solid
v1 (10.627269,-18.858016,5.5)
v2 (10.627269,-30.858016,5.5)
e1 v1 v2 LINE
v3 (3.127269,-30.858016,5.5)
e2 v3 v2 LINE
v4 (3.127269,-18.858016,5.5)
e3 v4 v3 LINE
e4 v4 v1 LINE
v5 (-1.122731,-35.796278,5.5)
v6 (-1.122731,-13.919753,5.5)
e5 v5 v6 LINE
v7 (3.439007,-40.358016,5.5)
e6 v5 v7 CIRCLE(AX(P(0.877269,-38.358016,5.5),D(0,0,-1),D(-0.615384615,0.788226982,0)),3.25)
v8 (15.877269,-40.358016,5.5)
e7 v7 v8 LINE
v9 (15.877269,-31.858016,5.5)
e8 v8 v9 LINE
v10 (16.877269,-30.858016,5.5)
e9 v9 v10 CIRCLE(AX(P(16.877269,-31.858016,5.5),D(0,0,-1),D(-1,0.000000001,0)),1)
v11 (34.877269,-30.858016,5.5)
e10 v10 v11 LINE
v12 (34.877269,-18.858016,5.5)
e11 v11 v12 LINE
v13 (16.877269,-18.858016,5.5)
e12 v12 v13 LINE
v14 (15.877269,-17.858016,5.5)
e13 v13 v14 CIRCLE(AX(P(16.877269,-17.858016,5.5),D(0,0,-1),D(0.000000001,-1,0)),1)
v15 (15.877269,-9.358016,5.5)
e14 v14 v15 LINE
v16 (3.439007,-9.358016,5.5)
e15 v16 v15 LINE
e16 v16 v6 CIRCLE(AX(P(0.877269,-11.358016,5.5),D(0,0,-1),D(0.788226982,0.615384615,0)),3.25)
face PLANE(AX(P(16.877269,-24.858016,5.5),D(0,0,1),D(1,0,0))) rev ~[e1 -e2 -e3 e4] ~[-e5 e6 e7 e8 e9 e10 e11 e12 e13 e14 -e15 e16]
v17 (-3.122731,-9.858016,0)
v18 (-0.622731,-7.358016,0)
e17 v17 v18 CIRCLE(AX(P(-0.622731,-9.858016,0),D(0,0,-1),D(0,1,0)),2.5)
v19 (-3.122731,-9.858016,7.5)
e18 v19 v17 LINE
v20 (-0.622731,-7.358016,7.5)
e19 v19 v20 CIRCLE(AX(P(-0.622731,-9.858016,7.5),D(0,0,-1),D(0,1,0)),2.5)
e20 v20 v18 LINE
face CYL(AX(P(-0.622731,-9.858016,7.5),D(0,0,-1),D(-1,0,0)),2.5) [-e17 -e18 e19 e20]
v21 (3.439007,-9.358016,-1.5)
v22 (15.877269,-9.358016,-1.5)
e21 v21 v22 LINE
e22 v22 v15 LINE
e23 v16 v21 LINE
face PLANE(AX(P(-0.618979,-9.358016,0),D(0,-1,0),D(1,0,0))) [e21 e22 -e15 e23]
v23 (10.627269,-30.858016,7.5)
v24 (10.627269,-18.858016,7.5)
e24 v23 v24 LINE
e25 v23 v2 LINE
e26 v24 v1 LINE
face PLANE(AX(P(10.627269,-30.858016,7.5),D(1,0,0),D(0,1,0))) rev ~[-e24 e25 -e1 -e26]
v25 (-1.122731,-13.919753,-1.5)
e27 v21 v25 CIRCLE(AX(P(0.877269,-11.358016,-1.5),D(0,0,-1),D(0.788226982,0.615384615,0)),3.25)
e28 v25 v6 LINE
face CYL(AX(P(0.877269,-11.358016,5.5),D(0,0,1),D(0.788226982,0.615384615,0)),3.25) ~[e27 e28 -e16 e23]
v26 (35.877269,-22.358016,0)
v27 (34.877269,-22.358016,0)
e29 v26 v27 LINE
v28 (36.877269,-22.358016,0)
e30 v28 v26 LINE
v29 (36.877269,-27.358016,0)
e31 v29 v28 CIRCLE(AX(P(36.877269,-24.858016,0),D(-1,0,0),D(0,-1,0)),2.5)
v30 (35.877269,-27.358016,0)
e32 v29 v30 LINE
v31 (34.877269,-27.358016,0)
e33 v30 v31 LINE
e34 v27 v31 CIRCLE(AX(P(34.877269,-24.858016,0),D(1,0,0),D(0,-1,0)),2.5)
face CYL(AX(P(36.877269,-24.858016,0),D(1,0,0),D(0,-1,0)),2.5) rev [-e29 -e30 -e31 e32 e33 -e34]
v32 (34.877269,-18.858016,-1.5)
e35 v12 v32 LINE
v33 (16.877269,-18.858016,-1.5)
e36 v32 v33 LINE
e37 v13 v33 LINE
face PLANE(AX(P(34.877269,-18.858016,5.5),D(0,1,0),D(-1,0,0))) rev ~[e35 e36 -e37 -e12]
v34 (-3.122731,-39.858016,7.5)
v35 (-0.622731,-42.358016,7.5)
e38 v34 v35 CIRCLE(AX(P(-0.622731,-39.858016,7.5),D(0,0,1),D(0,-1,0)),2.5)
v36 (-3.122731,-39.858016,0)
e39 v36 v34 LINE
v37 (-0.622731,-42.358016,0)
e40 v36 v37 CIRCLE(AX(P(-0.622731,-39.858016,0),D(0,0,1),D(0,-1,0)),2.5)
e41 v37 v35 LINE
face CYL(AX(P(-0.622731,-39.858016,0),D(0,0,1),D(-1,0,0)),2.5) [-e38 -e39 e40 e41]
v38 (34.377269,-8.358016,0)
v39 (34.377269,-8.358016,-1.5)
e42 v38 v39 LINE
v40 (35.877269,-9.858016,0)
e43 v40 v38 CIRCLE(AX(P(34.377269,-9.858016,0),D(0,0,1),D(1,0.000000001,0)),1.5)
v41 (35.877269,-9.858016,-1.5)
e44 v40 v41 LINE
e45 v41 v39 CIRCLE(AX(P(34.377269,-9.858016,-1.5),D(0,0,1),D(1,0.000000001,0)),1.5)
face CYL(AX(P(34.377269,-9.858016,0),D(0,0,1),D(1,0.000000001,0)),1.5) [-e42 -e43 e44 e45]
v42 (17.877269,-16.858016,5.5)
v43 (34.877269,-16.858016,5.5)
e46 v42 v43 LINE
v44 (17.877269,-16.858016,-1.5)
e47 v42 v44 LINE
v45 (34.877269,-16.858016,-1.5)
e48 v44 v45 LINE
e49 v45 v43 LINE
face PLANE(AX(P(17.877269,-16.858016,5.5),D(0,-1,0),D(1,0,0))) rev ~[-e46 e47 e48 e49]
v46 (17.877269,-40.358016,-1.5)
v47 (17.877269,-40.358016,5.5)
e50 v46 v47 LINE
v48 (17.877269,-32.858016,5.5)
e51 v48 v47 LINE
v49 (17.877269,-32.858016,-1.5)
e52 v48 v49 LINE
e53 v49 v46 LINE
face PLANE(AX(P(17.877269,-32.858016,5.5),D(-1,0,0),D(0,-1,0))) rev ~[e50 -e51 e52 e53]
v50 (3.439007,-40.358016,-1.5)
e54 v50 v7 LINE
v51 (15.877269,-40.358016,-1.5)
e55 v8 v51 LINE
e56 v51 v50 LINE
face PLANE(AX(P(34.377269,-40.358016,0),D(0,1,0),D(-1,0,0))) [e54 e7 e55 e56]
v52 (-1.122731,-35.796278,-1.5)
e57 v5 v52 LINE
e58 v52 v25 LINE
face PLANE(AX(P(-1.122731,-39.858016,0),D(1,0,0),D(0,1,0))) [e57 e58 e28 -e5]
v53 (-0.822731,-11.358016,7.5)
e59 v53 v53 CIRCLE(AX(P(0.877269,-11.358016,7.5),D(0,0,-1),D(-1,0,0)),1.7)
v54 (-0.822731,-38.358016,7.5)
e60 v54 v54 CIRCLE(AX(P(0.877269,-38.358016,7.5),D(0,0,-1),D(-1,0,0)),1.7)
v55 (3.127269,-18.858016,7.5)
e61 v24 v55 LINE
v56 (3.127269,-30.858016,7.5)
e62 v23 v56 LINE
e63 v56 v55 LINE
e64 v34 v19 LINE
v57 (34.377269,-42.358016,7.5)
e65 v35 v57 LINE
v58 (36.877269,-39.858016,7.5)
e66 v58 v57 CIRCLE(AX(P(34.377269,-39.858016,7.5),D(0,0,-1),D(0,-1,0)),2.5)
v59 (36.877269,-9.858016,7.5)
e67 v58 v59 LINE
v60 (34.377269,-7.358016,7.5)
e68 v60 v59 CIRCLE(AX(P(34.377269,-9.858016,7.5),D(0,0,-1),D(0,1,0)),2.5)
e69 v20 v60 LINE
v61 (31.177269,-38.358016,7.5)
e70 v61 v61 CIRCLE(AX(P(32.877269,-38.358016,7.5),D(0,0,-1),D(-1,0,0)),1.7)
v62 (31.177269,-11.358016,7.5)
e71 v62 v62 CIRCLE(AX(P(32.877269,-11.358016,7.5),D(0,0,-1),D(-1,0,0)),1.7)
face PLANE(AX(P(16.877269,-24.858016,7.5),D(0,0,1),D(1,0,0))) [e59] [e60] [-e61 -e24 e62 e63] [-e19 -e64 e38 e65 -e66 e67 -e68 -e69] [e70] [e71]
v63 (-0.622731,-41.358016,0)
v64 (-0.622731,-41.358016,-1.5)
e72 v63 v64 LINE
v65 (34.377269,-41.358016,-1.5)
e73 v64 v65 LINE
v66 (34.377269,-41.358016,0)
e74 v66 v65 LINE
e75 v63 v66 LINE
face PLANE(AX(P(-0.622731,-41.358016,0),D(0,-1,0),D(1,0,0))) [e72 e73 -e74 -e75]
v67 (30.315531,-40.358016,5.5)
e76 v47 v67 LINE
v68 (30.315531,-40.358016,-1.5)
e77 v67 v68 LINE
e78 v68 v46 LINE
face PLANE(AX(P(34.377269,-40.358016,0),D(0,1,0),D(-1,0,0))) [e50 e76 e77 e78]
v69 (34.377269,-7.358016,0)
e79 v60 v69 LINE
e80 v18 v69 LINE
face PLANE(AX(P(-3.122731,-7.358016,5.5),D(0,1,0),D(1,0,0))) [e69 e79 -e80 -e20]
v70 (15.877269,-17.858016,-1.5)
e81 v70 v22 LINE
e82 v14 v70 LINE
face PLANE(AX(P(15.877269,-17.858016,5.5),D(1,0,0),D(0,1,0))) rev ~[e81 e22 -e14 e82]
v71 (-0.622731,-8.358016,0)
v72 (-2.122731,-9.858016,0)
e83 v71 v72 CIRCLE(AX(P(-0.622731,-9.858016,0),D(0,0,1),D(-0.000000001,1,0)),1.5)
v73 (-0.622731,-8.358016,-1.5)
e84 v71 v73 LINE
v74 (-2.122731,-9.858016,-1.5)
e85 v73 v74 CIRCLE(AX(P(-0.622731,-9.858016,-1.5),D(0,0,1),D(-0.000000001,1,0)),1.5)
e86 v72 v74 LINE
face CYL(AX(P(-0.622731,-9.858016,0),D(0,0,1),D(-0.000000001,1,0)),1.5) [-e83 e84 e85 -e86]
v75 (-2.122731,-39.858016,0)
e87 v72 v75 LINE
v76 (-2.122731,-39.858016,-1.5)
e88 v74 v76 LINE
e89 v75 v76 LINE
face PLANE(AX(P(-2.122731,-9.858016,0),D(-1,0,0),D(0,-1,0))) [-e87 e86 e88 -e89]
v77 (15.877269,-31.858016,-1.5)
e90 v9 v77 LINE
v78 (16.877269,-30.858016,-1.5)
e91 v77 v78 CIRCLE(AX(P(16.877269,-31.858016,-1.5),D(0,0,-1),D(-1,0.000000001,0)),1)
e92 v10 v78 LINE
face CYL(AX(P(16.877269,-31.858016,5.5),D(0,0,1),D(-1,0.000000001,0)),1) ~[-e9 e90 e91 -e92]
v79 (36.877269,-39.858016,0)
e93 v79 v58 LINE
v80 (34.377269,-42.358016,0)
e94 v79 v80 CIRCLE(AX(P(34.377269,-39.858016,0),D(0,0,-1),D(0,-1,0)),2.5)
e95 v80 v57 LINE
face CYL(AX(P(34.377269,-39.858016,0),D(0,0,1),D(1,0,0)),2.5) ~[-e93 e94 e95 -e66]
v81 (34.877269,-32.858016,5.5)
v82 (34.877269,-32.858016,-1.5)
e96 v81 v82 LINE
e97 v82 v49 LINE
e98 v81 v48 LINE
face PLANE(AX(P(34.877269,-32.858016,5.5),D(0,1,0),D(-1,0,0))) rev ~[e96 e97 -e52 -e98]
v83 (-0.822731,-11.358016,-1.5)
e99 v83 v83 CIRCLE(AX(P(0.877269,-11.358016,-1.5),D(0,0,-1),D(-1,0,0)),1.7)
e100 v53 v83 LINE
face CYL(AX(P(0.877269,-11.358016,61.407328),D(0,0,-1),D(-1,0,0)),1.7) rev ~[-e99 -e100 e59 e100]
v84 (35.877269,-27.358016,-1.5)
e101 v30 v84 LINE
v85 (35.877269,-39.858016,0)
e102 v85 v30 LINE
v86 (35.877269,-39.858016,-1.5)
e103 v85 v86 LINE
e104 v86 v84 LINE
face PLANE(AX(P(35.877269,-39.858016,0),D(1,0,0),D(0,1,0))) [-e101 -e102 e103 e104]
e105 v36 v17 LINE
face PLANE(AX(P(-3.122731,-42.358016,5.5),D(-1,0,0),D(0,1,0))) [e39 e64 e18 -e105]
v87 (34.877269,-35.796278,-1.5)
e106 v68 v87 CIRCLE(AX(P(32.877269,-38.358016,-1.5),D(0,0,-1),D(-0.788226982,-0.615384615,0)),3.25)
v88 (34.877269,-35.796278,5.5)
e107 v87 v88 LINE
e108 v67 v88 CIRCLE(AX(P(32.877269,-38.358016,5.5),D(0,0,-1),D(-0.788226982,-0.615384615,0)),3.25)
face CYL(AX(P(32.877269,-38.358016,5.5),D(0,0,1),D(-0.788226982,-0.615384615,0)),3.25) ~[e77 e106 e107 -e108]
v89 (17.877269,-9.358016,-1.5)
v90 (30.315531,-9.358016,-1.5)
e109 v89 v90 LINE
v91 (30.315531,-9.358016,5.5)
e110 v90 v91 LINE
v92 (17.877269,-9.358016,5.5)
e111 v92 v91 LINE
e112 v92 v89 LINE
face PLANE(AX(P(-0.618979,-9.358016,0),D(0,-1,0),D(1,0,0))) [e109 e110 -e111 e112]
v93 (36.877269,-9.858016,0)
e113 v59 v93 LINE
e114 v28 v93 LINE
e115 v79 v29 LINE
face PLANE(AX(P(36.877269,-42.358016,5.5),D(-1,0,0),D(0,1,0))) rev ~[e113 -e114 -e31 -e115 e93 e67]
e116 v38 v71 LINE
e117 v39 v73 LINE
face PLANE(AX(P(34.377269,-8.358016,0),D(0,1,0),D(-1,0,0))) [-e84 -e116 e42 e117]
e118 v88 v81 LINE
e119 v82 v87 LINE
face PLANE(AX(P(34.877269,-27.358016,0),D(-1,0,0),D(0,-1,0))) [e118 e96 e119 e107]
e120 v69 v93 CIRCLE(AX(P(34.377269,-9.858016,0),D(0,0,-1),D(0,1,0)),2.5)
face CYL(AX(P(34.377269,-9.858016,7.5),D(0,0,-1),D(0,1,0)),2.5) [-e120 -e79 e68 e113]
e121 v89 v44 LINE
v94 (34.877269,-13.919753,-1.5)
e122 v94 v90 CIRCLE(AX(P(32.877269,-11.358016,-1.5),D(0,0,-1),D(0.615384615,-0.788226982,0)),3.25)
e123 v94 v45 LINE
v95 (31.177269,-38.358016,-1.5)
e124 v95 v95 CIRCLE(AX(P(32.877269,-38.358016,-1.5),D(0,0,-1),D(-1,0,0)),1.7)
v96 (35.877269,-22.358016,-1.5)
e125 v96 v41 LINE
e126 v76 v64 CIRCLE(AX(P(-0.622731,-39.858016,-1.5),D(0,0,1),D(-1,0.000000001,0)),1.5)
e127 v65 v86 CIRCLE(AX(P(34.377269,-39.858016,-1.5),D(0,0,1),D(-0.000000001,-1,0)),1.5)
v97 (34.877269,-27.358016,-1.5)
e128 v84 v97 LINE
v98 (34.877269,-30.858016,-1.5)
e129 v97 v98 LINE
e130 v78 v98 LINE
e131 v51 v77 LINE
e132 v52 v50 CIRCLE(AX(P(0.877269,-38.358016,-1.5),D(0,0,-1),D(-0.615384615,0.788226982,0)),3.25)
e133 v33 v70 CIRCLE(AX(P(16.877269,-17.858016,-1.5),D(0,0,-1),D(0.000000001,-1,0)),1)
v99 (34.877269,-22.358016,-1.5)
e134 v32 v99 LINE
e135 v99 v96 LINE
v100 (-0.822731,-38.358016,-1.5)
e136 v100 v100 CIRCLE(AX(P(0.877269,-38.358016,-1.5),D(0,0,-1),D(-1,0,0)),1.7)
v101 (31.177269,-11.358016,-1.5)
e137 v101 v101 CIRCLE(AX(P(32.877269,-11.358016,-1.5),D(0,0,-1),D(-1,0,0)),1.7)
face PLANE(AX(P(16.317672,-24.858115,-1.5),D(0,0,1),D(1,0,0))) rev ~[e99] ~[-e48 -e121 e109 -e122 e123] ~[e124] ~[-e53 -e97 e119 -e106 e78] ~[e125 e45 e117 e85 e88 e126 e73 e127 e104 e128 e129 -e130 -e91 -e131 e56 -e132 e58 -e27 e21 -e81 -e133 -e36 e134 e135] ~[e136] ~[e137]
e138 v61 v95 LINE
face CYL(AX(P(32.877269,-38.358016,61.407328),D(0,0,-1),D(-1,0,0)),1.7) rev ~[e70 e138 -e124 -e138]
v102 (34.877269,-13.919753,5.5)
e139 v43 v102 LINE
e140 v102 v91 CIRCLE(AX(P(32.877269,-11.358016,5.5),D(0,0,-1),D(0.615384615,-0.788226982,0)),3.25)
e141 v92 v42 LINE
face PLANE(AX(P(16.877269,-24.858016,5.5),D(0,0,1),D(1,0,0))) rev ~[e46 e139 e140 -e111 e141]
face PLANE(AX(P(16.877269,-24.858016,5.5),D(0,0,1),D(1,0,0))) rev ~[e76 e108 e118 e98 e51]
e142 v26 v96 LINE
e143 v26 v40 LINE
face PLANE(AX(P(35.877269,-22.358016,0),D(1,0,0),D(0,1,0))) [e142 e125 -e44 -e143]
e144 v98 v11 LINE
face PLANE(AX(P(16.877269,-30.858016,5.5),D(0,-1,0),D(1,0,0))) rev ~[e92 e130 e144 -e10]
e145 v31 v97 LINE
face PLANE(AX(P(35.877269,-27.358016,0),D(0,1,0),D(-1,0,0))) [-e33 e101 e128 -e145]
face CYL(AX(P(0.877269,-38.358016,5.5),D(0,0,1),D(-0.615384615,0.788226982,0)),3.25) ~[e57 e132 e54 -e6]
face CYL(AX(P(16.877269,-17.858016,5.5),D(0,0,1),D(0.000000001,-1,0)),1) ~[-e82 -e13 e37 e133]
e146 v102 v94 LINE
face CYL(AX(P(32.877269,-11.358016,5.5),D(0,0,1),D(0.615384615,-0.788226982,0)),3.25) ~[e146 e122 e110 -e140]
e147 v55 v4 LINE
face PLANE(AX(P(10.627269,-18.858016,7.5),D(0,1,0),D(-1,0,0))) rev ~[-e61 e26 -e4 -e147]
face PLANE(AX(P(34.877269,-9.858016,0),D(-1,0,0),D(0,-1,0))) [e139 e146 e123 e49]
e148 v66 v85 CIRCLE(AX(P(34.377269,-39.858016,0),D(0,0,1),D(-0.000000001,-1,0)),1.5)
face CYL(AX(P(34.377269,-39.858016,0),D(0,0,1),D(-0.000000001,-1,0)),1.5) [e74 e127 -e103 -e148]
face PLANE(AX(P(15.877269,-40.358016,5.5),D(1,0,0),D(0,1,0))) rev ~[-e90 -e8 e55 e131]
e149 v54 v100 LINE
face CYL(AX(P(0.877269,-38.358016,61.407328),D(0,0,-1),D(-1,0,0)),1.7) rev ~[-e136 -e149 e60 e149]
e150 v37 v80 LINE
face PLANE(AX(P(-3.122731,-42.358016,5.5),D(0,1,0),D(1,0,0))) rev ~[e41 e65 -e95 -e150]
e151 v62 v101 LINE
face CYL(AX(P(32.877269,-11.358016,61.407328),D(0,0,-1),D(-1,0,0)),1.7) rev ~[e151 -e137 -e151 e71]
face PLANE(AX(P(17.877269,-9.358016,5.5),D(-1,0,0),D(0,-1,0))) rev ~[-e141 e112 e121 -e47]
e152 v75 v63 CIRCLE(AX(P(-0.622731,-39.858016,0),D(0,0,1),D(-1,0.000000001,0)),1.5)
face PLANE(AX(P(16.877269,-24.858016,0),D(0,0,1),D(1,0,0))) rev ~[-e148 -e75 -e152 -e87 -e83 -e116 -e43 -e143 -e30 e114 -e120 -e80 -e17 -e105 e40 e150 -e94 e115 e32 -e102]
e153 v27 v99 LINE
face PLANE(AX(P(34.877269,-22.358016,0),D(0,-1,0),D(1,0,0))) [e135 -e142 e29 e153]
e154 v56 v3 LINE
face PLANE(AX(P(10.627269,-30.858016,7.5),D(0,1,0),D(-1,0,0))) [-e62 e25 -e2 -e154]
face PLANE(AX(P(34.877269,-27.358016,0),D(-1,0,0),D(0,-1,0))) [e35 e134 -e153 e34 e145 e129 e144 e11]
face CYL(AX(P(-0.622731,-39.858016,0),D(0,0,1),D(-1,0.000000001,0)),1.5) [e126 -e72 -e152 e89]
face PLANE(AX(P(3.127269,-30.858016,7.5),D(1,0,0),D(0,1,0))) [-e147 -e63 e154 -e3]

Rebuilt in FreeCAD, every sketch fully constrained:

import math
import FreeCAD as App
import Part
import Sketcher
Q = App.Units.Quantity


def edges_at(feature, points):
    """Names of the edges that pass closest to the given points."""
    edges = feature.Shape.Edges
    near = lambda p: min(range(len(edges)), key=lambda i: edges[i].distToShape(Part.Vertex(*p))[0])
    return sorted({f"Edge{near(p) + 1}" for p in points})


def add_polygon(sketch, points):
    """Adds a closed chain of lines whose ends are joined by coincident constraints."""
    first, n = sketch.GeometryCount, len(points)
    for a, b in zip(points, points[1:] + points[:1]):
        sketch.addGeometry(Part.LineSegment(App.Vector(*a, 0), App.Vector(*b, 0)), False)
    for i in range(n):
        sketch.addConstraint(Sketcher.Constraint("Coincident", first + i, 2, first + (i + 1) % n, 1))

doc = App.newDocument("Part")
params = doc.addObject("Spreadsheet::Sheet", "Params")
for row, (alias, value) in enumerate([
    ("sketch1_width", "40 mm"),
    ("sketch1_width2", "36 mm"),
    ("sketch1_height", "35 mm"),
    ("sketch1_height2", "31 mm"),
    ("pad1_length", "5.5 mm"),
    ("sketch2_width", "40 mm"),
    ("sketch2_height", "35 mm"),
    ("pad2_length", "2 mm"),
    ("sketch3_radius", "2.5 mm"),
    ("sketch4_radius", "1 mm"),
    ("sketch4_width", "17 mm"),
    ("sketch4_width2", "2 mm"),
    ("sketch4_radius2", "3.25 mm"),
    ("sketch4_height", "7.5 mm"),
    ("pad3_length", "7 mm"),
    ("sketch5_height", "12 mm"),
    ("sketch5_width", "7.5 mm"),
    ("sketch6_diameter", "3.4 mm"),
    ("hole_diameter", "3.4 mm"),
    ("fillet_radius", "2.5 mm"),
    ("sketch7_radius", "1.5 mm"),
    ("sketch7_radius2", "0.5 mm"),
    ("sketch7_width", "35 mm"),
    ("sketch7_height", "30 mm"),
    ("sketch7_height2", "12.5 mm"),
    ("pad4_length", "1.5 mm"),
], start=1):
    params.set(f"A{row}", alias)
    params.set(f"B{row}", "=" + value)
    params.setAlias(f"B{row}", alias)

body = doc.addObject("PartDesign::Body", "Body")

sketch1 = body.newObject("Sketcher::SketchObject", "Sketch")
sketch1.AttachmentSupport = (doc.getObject("XY_Plane"), [""])
sketch1.MapMode = "FlatFace"
add_polygon(sketch1, [(-3, -7), (-3, -42), (37, -42), (37, -7)])
add_polygon(sketch1, [(35, -40), (-1, -40), (-1, -9), (35, -9)])
sketch1.addConstraint([
    Sketcher.Constraint("Vertical", 0),
    Sketcher.Constraint("Horizontal", 1),
    Sketcher.Constraint("Vertical", 2),
    Sketcher.Constraint("Horizontal", 3),
    Sketcher.Constraint("Horizontal", 4),
    Sketcher.Constraint("Vertical", 5),
    Sketcher.Constraint("Horizontal", 6),
    Sketcher.Constraint("Vertical", 7),
    Sketcher.Constraint("DistanceX", 1, 1, 1, 2, Q("40 mm")),
    Sketcher.Constraint("DistanceX", 4, 2, 4, 1, Q("36 mm")),
    Sketcher.Constraint("DistanceY", 0, 2, 0, 1, Q("35 mm")),
    Sketcher.Constraint("DistanceY", 5, 1, 5, 2, Q("31 mm")),
    Sketcher.Constraint("DistanceX", 0, 2, 4, 2, Q("2 mm")),
    Sketcher.Constraint("DistanceY", 0, 2, 4, 2, Q("2 mm")),
    Sketcher.Constraint("DistanceX", 0, 2, -1, 1, Q("3.122731 mm")),
    Sketcher.Constraint("DistanceY", 0, 2, -1, 1, Q("42.358016 mm")),
])
sketch1.setExpression("Constraints[16]", "Params.sketch1_width")
sketch1.setExpression("Constraints[17]", "Params.sketch1_width2")
sketch1.setExpression("Constraints[18]", "Params.sketch1_height")
sketch1.setExpression("Constraints[19]", "Params.sketch1_height2")
pad1 = body.newObject("PartDesign::Pad", "Pad")
pad1.Profile = sketch1
pad1.setExpression("Length", "Params.pad1_length")

sketch2 = body.newObject("Sketcher::SketchObject", "Sketch001")
sketch2.AttachmentSupport = (doc.getObject("XY_Plane"), [""])
sketch2.MapMode = "FlatFace"
sketch2.AttachmentOffset = App.Placement(App.Vector(0, 0, 5.5), App.Rotation())
add_polygon(sketch2, [(-3, -7), (-3, -42), (37, -42), (37, -7)])
sketch2.addConstraint([
    Sketcher.Constraint("Vertical", 0),
    Sketcher.Constraint("Horizontal", 1),
    Sketcher.Constraint("Vertical", 2),
    Sketcher.Constraint("Horizontal", 3),
    Sketcher.Constraint("DistanceX", 1, 1, 1, 2, Q("40 mm")),
    Sketcher.Constraint("DistanceY", 0, 2, 0, 1, Q("35 mm")),
    Sketcher.Constraint("DistanceX", 0, 2, -1, 1, Q("3.122731 mm")),
    Sketcher.Constraint("DistanceY", 0, 2, -1, 1, Q("42.358016 mm")),
])
sketch2.setExpression("Constraints[8]", "Params.sketch2_width")
sketch2.setExpression("Constraints[9]", "Params.sketch2_height")
pad2 = body.newObject("PartDesign::Pad", "Pad001")
pad2.Profile = sketch2
pad2.setExpression("Length", "Params.pad2_length")

sketch3 = body.newObject("Sketcher::SketchObject", "Sketch002")
sketch3.AttachmentSupport = (doc.getObject("YZ_Plane"), [""])
sketch3.MapMode = "FlatFace"
sketch3.AttachmentOffset = App.Placement(App.Vector(0, 0, 36.877269), App.Rotation())
sketch3.addGeometry([
    Part.LineSegment(App.Vector(-27.4, 0, 0), App.Vector(-22.4, 0, 0)),
    Part.ArcOfCircle(Part.Circle(App.Vector(-24.9, 0, 0), App.Vector(0, 0, 1), 2.5), math.radians(0), math.radians(180)),
], False)
sketch3.addConstraint([
    Sketcher.Constraint("Coincident", 0, 1, 1, 2),
    Sketcher.Constraint("Coincident", 1, 1, 0, 2),
    Sketcher.Constraint("Horizontal", 0),
    Sketcher.Constraint("PointOnObject", 1, 3, -1),
    Sketcher.Constraint("PointOnObject", 0, 1, -1),
    Sketcher.Constraint("Radius", 1, Q("2.5 mm")),
    Sketcher.Constraint("DistanceX", 1, 3, -1, 1, Q("24.858016 mm")),
])
sketch3.setExpression("Constraints[5]", "Params.sketch3_radius")
pocket1 = body.newObject("PartDesign::Pocket", "Pocket")
pocket1.Profile = sketch3
pocket1.Type = "UpToFirst"

sketch4 = body.newObject("Sketcher::SketchObject", "Sketch003")
sketch4.AttachmentSupport = (doc.getObject("XY_Plane"), [""])
sketch4.MapMode = "FlatFace"
sketch4.AttachmentOffset = App.Placement(App.Vector(0, 0, 5.5), App.Rotation())
sketch4.addGeometry([
    Part.ArcOfCircle(Part.Circle(App.Vector(32.9, -11.4, 0), App.Vector(0, 0, 1), 3.2), math.radians(142), math.radians(308)),
    Part.LineSegment(App.Vector(30.3, -9.4, 0), App.Vector(34.9, -9.4, 0)),
    Part.LineSegment(App.Vector(34.9, -9.4, 0), App.Vector(34.9, -13.9, 0)),
    Part.LineSegment(App.Vector(34.9, -32.9, 0), App.Vector(17.9, -32.9, 0)),
    Part.LineSegment(App.Vector(17.9, -32.9, 0), App.Vector(17.9, -40.4, 0)),
    Part.LineSegment(App.Vector(17.9, -40.4, 0), App.Vector(15.9, -40.4, 0)),
    Part.LineSegment(App.Vector(15.9, -40.4, 0), App.Vector(15.9, -31.9, 0)),
    Part.ArcOfCircle(Part.Circle(App.Vector(16.9, -31.9, 0), App.Vector(0, 0, 1), 1), math.radians(90), math.radians(180)),
    Part.LineSegment(App.Vector(16.9, -30.9, 0), App.Vector(34.9, -30.9, 0)),
    Part.LineSegment(App.Vector(34.9, -30.9, 0), App.Vector(34.9, -32.9, 0)),
    Part.LineSegment(App.Vector(34.9, -35.8, 0), App.Vector(34.9, -40.4, 0)),
    Part.LineSegment(App.Vector(34.9, -40.4, 0), App.Vector(30.3, -40.4, 0)),
    Part.ArcOfCircle(Part.Circle(App.Vector(32.9, -38.4, 0), App.Vector(0, 0, 1), 3.2), math.radians(52), math.radians(218)),
    Part.LineSegment(App.Vector(17.9, -16.9, 0), App.Vector(34.9, -16.9, 0)),
    Part.LineSegment(App.Vector(34.9, -16.9, 0), App.Vector(34.9, -18.9, 0)),
    Part.LineSegment(App.Vector(34.9, -18.9, 0), App.Vector(16.9, -18.9, 0)),
    Part.ArcOfCircle(Part.Circle(App.Vector(16.9, -17.9, 0), App.Vector(0, 0, 1), 1), math.radians(180), math.radians(270)),
    Part.LineSegment(App.Vector(15.9, -17.9, 0), App.Vector(15.9, -9.4, 0)),
    Part.LineSegment(App.Vector(15.9, -9.4, 0), App.Vector(17.9, -9.4, 0)),
    Part.LineSegment(App.Vector(17.9, -9.4, 0), App.Vector(17.9, -16.9, 0)),
    Part.LineSegment(App.Vector(3.4, -40.4, 0), App.Vector(-1.1, -40.4, 0)),
    Part.LineSegment(App.Vector(-1.1, -40.4, 0), App.Vector(-1.1, -35.8, 0)),
    Part.ArcOfCircle(Part.Circle(App.Vector(0.9, -38.4, 0), App.Vector(0, 0, 1), 3.2), math.radians(-38), math.radians(128)),
    Part.LineSegment(App.Vector(-1.1, -13.9, 0), App.Vector(-1.1, -9.4, 0)),
    Part.LineSegment(App.Vector(-1.1, -9.4, 0), App.Vector(3.4, -9.4, 0)),
    Part.ArcOfCircle(Part.Circle(App.Vector(0.9, -11.4, 0), App.Vector(0, 0, 1), 3.2), math.radians(-128), math.radians(38)),
], False)
sketch4.addConstraint([
    Sketcher.Constraint("Coincident", 0, 1, 1, 1),
    Sketcher.Constraint("Coincident", 1, 2, 2, 1),
    Sketcher.Constraint("Coincident", 2, 2, 0, 2),
    Sketcher.Constraint("Coincident", 3, 2, 4, 1),
    Sketcher.Constraint("Coincident", 4, 2, 5, 1),
    Sketcher.Constraint("Coincident", 5, 2, 6, 1),
    Sketcher.Constraint("Tangent", 6, 2, 7, 2),
    Sketcher.Constraint("Tangent", 7, 1, 8, 1),
    Sketcher.Constraint("Coincident", 8, 2, 9, 1),
    Sketcher.Constraint("Coincident", 9, 2, 3, 1),
    Sketcher.Constraint("Coincident", 10, 2, 11, 1),
    Sketcher.Constraint("Coincident", 11, 2, 12, 2),
    Sketcher.Constraint("Coincident", 12, 1, 10, 1),
    Sketcher.Constraint("Coincident", 13, 2, 14, 1),
    Sketcher.Constraint("Coincident", 14, 2, 15, 1),
    Sketcher.Constraint("Tangent", 15, 2, 16, 2),
    Sketcher.Constraint("Tangent", 16, 1, 17, 1),
    Sketcher.Constraint("Coincident", 17, 2, 18, 1),
    Sketcher.Constraint("Coincident", 18, 2, 19, 1),
    Sketcher.Constraint("Coincident", 19, 2, 13, 1),
    Sketcher.Constraint("Coincident", 20, 2, 21, 1),
    Sketcher.Constraint("Coincident", 21, 2, 22, 2),
    Sketcher.Constraint("Coincident", 22, 1, 20, 1),
    Sketcher.Constraint("Coincident", 23, 2, 24, 1),
    Sketcher.Constraint("Coincident", 24, 2, 25, 2),
    Sketcher.Constraint("Coincident", 25, 1, 23, 1),
    Sketcher.Constraint("Horizontal", 1),
    Sketcher.Constraint("Vertical", 2),
    Sketcher.Constraint("Horizontal", 3),
    Sketcher.Constraint("Vertical", 4),
    Sketcher.Constraint("Horizontal", 5),
    Sketcher.Constraint("Vertical", 6),
    Sketcher.Constraint("Horizontal", 8),
    Sketcher.Constraint("Vertical", 9),
    Sketcher.Constraint("Vertical", 10),
    Sketcher.Constraint("Horizontal", 11),
    Sketcher.Constraint("Horizontal", 13),
    Sketcher.Constraint("Vertical", 14),
    Sketcher.Constraint("Horizontal", 15),
    Sketcher.Constraint("Vertical", 17),
    Sketcher.Constraint("Horizontal", 18),
    Sketcher.Constraint("Vertical", 19),
    Sketcher.Constraint("Horizontal", 20),
    Sketcher.Constraint("Vertical", 21),
    Sketcher.Constraint("Vertical", 23),
    Sketcher.Constraint("Horizontal", 24),
    Sketcher.Constraint("Equal", 0, 12),
    Sketcher.Constraint("Equal", 7, 16),
    Sketcher.Constraint("Equal", 12, 22),
    Sketcher.Constraint("Equal", 22, 25),
    Sketcher.Constraint("Horizontal", 12, 3, 22, 3),
    Sketcher.Constraint("Horizontal", 0, 3, 25, 3),
    Sketcher.Constraint("Horizontal", 5, 2, 10, 2),
    Sketcher.Constraint("Horizontal", 1, 2, 17, 2),
    Sketcher.Constraint("Horizontal", 11, 2, 20, 2),
    Sketcher.Constraint("Horizontal", 12, 1, 21, 2),
    Sketcher.Constraint("Horizontal", 18, 2, 23, 2),
    Sketcher.Constraint("Horizontal", 2, 2, 25, 1),
    Sketcher.Constraint("Vertical", 0, 3, 12, 3),
    Sketcher.Constraint("Vertical", 7, 3, 16, 3),
    Sketcher.Constraint("Vertical", 22, 3, 25, 3),
    Sketcher.Constraint("Vertical", 2, 2, 8, 2),
    Sketcher.Constraint("Vertical", 9, 2, 10, 2),
    Sketcher.Constraint("Vertical", 0, 1, 11, 2),
    Sketcher.Constraint("Vertical", 12, 1, 13, 2),
    Sketcher.Constraint("Vertical", 4, 2, 18, 2),
    Sketcher.Constraint("Equal", 24, 2),
    Sketcher.Constraint("Equal", 18, 9),
    Sketcher.Constraint("Equal", 9, 14),
    Sketcher.Constraint("Equal", 6, 17),
    Sketcher.Constraint("Radius", 7, Q("1 mm")),
    Sketcher.Constraint("DistanceX", 3, 2, 3, 1, Q("17 mm")),
    Sketcher.Constraint("DistanceX", 5, 2, 5, 1, Q("2 mm")),
    Sketcher.Constraint("Radius", 0, Q("3.25 mm")),
    Sketcher.Constraint("DistanceY", 4, 2, 4, 1, Q("7.5 mm")),
    Sketcher.Constraint("DistanceX", 7, 3, 0, 3, Q("16 mm")),
    Sketcher.Constraint("DistanceY", 12, 3, 0, 3, Q("27 mm")),
    Sketcher.Constraint("DistanceX", 22, 3, 7, 3, Q("16 mm")),
    Sketcher.Constraint("DistanceX", -1, 1, 0, 3, Q("32.877269 mm")),
    Sketcher.Constraint("DistanceY", 0, 3, -1, 1, Q("11.358016 mm")),
])
sketch4.setExpression("Constraints[70]", "Params.sketch4_radius")
sketch4.setExpression("Constraints[71]", "Params.sketch4_width")
sketch4.setExpression("Constraints[72]", "Params.sketch4_width2")
sketch4.setExpression("Constraints[73]", "Params.sketch4_radius2")
sketch4.setExpression("Constraints[74]", "Params.sketch4_height")
pad3 = body.newObject("PartDesign::Pad", "Pad002")
pad3.Profile = sketch4
pad3.setExpression("Length", "Params.pad3_length")
pad3.Reversed = True

sketch5 = body.newObject("Sketcher::SketchObject", "Sketch004")
sketch5.AttachmentSupport = (doc.getObject("XY_Plane"), [""])
sketch5.MapMode = "FlatFace"
sketch5.AttachmentOffset = App.Placement(App.Vector(0, 0, 7.5), App.Rotation())
add_polygon(sketch5, [(11, -19), (11, -31), (3, -31), (3, -19)])
sketch5.addConstraint([
    Sketcher.Constraint("Vertical", 0),
    Sketcher.Constraint("Horizontal", 1),
    Sketcher.Constraint("Vertical", 2),
    Sketcher.Constraint("Horizontal", 3),
    Sketcher.Constraint("DistanceY", 0, 2, 0, 1, Q("12 mm")),
    Sketcher.Constraint("DistanceX", 1, 2, 1, 1, Q("7.5 mm")),
    Sketcher.Constraint("DistanceX", -1, 1, 0, 2, Q("10.627269 mm")),
    Sketcher.Constraint("DistanceY", 0, 2, -1, 1, Q("30.858016 mm")),
])
sketch5.setExpression("Constraints[8]", "Params.sketch5_height")
sketch5.setExpression("Constraints[9]", "Params.sketch5_width")
pocket2 = body.newObject("PartDesign::Pocket", "Pocket001")
pocket2.Profile = sketch5
pocket2.Type = "UpToFirst"

sketch6 = body.newObject("Sketcher::SketchObject", "Sketch005")
sketch6.AttachmentSupport = (doc.getObject("XY_Plane"), [""])
sketch6.MapMode = "FlatFace"
sketch6.AttachmentOffset = App.Placement(App.Vector(0, 0, 7.5), App.Rotation())
sketch6.addGeometry([
    Part.Circle(App.Vector(0.9, -11.4, 0), App.Vector(0, 0, 1), 1.7),
    Part.Circle(App.Vector(32.9, -38.4, 0), App.Vector(0, 0, 1), 1.7),
    Part.Circle(App.Vector(32.9, -11.4, 0), App.Vector(0, 0, 1), 1.7),
    Part.Circle(App.Vector(0.9, -38.4, 0), App.Vector(0, 0, 1), 1.7),
], False)
sketch6.addConstraint([
    Sketcher.Constraint("Equal", 0, 1),
    Sketcher.Constraint("Equal", 1, 2),
    Sketcher.Constraint("Equal", 2, 3),
    Sketcher.Constraint("Horizontal", 0, 3, 2, 3),
    Sketcher.Constraint("Horizontal", 1, 3, 3, 3),
    Sketcher.Constraint("Vertical", 1, 3, 2, 3),
    Sketcher.Constraint("Vertical", 0, 3, 3, 3),
    Sketcher.Constraint("Diameter", 0, Q("3.4 mm")),
    Sketcher.Constraint("DistanceX", 0, 3, 1, 3, Q("32 mm")),
    Sketcher.Constraint("DistanceY", 1, 3, 0, 3, Q("27 mm")),
    Sketcher.Constraint("DistanceX", -1, 1, 0, 3, Q("0.877269 mm")),
    Sketcher.Constraint("DistanceY", 0, 3, -1, 1, Q("11.358016 mm")),
])
sketch6.setExpression("Constraints[7]", "Params.sketch6_diameter")
doc.recompute()
hole = body.newObject("PartDesign::Hole", "Hole")
hole.Profile = sketch6
hole.ThreadType = "None"
hole.setExpression("Diameter", "Params.hole_diameter")
hole.DepthType = "ThroughAll"
doc.recompute()

fillet = body.newObject("PartDesign::Fillet", "Fillet")
fillet.Base = (hole, edges_at(hole, [
    (-3.123, -7.358, 3.75),
    (36.877, -7.358, 3.75),
    (36.877, -42.358, 3.75),
    (-3.123, -42.358, 3.75),
]))
fillet.setExpression("Radius", "Params.fillet_radius")

sketch7 = body.newObject("Sketcher::SketchObject", "Sketch006")
sketch7.AttachmentSupport = (doc.getObject("XY_Plane"), [""])
sketch7.MapMode = "FlatFace"
sketch7.addGeometry([
    Part.LineSegment(App.Vector(34.88, -27.36, 0), App.Vector(35.88, -27.36, 0)),
    Part.LineSegment(App.Vector(35.88, -27.36, 0), App.Vector(35.88, -39.86, 0)),
    Part.ArcOfCircle(Part.Circle(App.Vector(34.38, -39.86, 0), App.Vector(0, 0, 1), 1.5), math.radians(-90), math.radians(0)),
    Part.LineSegment(App.Vector(34.38, -41.36, 0), App.Vector(-0.62, -41.36, 0)),
    Part.ArcOfCircle(Part.Circle(App.Vector(-0.62, -39.86, 0), App.Vector(0, 0, 1), 1.5), math.radians(180), math.radians(270)),
    Part.LineSegment(App.Vector(-2.12, -39.86, 0), App.Vector(-2.12, -9.86, 0)),
    Part.ArcOfCircle(Part.Circle(App.Vector(-0.62, -9.86, 0), App.Vector(0, 0, 1), 1.5), math.radians(90), math.radians(180)),
    Part.LineSegment(App.Vector(-0.62, -8.36, 0), App.Vector(34.38, -8.36, 0)),
    Part.ArcOfCircle(Part.Circle(App.Vector(34.38, -9.86, 0), App.Vector(0, 0, 1), 1.5), math.radians(0), math.radians(90)),
    Part.LineSegment(App.Vector(35.88, -9.86, 0), App.Vector(35.88, -22.36, 0)),
    Part.LineSegment(App.Vector(35.88, -22.36, 0), App.Vector(34.88, -22.36, 0)),
    Part.LineSegment(App.Vector(34.88, -22.36, 0), App.Vector(34.88, -9.86, 0)),
    Part.ArcOfCircle(Part.Circle(App.Vector(34.38, -9.86, 0), App.Vector(0, 0, 1), 0.5), math.radians(0), math.radians(90)),
    Part.LineSegment(App.Vector(34.38, -9.36, 0), App.Vector(-0.62, -9.36, 0)),
    Part.ArcOfCircle(Part.Circle(App.Vector(-0.62, -9.86, 0), App.Vector(0, 0, 1), 0.5), math.radians(90), math.radians(180)),
    Part.LineSegment(App.Vector(-1.12, -9.86, 0), App.Vector(-1.12, -39.86, 0)),
    Part.ArcOfCircle(Part.Circle(App.Vector(-0.62, -39.86, 0), App.Vector(0, 0, 1), 0.5), math.radians(180), math.radians(270)),
    Part.LineSegment(App.Vector(-0.62, -40.36, 0), App.Vector(34.38, -40.36, 0)),
    Part.ArcOfCircle(Part.Circle(App.Vector(34.38, -39.86, 0), App.Vector(0, 0, 1), 0.5), math.radians(-90), math.radians(0)),
    Part.LineSegment(App.Vector(34.88, -39.86, 0), App.Vector(34.88, -27.36, 0)),
], False)
sketch7.addConstraint([
    Sketcher.Constraint("Coincident", 0, 2, 1, 1),
    Sketcher.Constraint("Tangent", 1, 2, 2, 2),
    Sketcher.Constraint("Tangent", 2, 1, 3, 1),
    Sketcher.Constraint("Tangent", 3, 2, 4, 2),
    Sketcher.Constraint("Tangent", 4, 1, 5, 1),
    Sketcher.Constraint("Tangent", 5, 2, 6, 2),
    Sketcher.Constraint("Tangent", 6, 1, 7, 1),
    Sketcher.Constraint("Tangent", 7, 2, 8, 2),
    Sketcher.Constraint("Tangent", 8, 1, 9, 1),
    Sketcher.Constraint("Coincident", 9, 2, 10, 1),
    Sketcher.Constraint("Coincident", 10, 2, 11, 1),
    Sketcher.Constraint("Tangent", 11, 2, 12, 1),
    Sketcher.Constraint("Tangent", 12, 2, 13, 1),
    Sketcher.Constraint("Tangent", 13, 2, 14, 1),
    Sketcher.Constraint("Tangent", 14, 2, 15, 1),
    Sketcher.Constraint("Tangent", 15, 2, 16, 1),
    Sketcher.Constraint("Tangent", 16, 2, 17, 1),
    Sketcher.Constraint("Tangent", 17, 2, 18, 1),
    Sketcher.Constraint("Tangent", 18, 2, 19, 1),
    Sketcher.Constraint("Coincident", 19, 2, 0, 1),
    Sketcher.Constraint("Horizontal", 0),
    Sketcher.Constraint("Vertical", 1),
    Sketcher.Constraint("Horizontal", 3),
    Sketcher.Constraint("Vertical", 5),
    Sketcher.Constraint("Horizontal", 7),
    Sketcher.Constraint("Vertical", 9),
    Sketcher.Constraint("Horizontal", 10),
    Sketcher.Constraint("Vertical", 11),
    Sketcher.Constraint("Horizontal", 13),
    Sketcher.Constraint("Vertical", 15),
    Sketcher.Constraint("Horizontal", 17),
    Sketcher.Constraint("Vertical", 19),
    Sketcher.Constraint("Coincident", 12, 3, 8, 3),
    Sketcher.Constraint("Coincident", 16, 3, 4, 3),
    Sketcher.Constraint("Coincident", 18, 3, 2, 3),
    Sketcher.Constraint("Equal", 2, 4),
    Sketcher.Constraint("Equal", 4, 6),
    Sketcher.Constraint("Equal", 6, 8),
    Sketcher.Constraint("Equal", 12, 16),
    Sketcher.Constraint("Vertical", 2, 3, 8, 3),
    Sketcher.Constraint("Equal", 1, 9),
    Sketcher.Constraint("Radius", 2, Q("1.5 mm")),
    Sketcher.Constraint("Radius", 12, Q("0.5 mm")),
    Sketcher.Constraint("DistanceX", 3, 2, 3, 1, Q("35 mm")),
    Sketcher.Constraint("DistanceY", 5, 1, 5, 2, Q("30 mm")),
    Sketcher.Constraint("DistanceY", 1, 2, 1, 1, Q("12.5 mm")),
    Sketcher.Constraint("Radius", 14, Q("0.503752 mm")),
    Sketcher.Constraint("DistanceX", -1, 1, 2, 3, Q("34.377269 mm")),
    Sketcher.Constraint("DistanceY", 2, 3, -1, 1, Q("39.858016 mm")),
])
sketch7.setExpression("Constraints[41]", "Params.sketch7_radius")
sketch7.setExpression("Constraints[42]", "Params.sketch7_radius2")
sketch7.setExpression("Constraints[43]", "Params.sketch7_width")
sketch7.setExpression("Constraints[44]", "Params.sketch7_height")
sketch7.setExpression("Constraints[45]", "Params.sketch7_height2")
pad4 = body.newObject("PartDesign::Pad", "Pad003")
pad4.Profile = sketch7
pad4.setExpression("Length", "Params.pad4_length")
pad4.Reversed = True

doc.recompute()
